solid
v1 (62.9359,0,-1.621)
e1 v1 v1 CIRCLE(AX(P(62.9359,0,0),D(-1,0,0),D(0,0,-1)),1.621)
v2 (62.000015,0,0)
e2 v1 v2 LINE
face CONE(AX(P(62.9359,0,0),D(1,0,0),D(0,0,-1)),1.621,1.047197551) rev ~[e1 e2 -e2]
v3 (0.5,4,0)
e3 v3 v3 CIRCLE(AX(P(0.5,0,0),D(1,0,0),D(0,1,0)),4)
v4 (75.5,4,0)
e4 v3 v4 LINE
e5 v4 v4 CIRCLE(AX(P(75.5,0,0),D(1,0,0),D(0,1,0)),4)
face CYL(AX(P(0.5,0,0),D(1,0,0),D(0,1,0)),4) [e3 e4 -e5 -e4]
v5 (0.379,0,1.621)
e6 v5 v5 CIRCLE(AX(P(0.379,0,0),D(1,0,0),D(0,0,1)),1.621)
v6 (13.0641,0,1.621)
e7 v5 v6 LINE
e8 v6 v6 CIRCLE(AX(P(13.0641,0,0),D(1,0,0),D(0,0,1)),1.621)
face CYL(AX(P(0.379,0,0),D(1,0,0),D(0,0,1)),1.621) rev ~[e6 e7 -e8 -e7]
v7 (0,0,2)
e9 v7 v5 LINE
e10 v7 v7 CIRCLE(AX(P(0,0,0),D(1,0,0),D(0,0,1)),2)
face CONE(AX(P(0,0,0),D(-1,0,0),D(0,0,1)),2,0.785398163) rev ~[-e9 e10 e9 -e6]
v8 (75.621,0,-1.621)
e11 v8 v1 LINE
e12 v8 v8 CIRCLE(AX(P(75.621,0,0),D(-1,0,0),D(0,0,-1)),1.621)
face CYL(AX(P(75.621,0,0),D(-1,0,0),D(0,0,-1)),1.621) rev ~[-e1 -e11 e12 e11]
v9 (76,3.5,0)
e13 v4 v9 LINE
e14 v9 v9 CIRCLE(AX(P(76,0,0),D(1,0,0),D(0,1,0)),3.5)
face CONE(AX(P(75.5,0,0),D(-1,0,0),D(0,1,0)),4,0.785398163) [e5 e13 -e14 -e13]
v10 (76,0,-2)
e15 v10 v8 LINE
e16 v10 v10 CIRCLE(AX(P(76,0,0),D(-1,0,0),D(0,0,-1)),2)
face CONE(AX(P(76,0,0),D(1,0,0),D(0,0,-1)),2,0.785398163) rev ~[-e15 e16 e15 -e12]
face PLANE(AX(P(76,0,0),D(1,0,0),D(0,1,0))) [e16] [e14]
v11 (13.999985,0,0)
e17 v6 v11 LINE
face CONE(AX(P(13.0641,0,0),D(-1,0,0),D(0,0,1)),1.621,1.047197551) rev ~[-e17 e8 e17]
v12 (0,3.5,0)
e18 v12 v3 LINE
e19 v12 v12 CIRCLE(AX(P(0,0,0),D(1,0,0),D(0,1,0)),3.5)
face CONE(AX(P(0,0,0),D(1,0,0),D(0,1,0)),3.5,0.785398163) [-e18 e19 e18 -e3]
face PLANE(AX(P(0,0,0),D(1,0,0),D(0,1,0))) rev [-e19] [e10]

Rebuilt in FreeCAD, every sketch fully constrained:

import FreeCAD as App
import Part
import Sketcher
from FreeCAD import Vector


def add_polygon(sketch, points):
    """Adds a closed chain of lines whose ends are joined by coincident constraints."""
    first, n = sketch.GeometryCount, len(points)
    for a, b in zip(points, points[1:] + points[:1]):
        sketch.addGeometry(Part.LineSegment(App.Vector(*a, 0), App.Vector(*b, 0)), False)
    for i in range(n):
        sketch.addConstraint(Sketcher.Constraint("Coincident", first + i, 2, first + (i + 1) % n, 1))

doc = App.newDocument("Part")
params = doc.addObject("Spreadsheet::Sheet", "Params")
for row, (alias, value) in enumerate([
    ("sketch1_width", "76 mm"),
    ("sketch1_width2", "75 mm"),
    ("sketch1_height", "3.5 mm"),
    ("revolution_angle", "360 deg"),
    ("hole_diameter", "3.242 mm"),
    ("hole_depth", "13.0641 mm"),
    ("hole_csink_diameter", "4 mm"),
    ("hole2_diameter", "3.242 mm"),
    ("hole2_depth", "13.0641 mm"),
    ("hole2_csink_diameter", "4 mm"),
], start=1):
    params.set(f"A{row}", alias)
    params.set(f"B{row}", "=" + value)
    params.setAlias(f"B{row}", alias)

body = doc.addObject("PartDesign::Body", "Body")

# Sketch on XY plane
sketch1 = body.newObject("Sketcher::SketchObject", "Sketch")
sketch1.AttachmentSupport = (doc.getObject("XY_Plane"), [""])
sketch1.MapMode = "FlatFace"
add_polygon(sketch1, [(0, 0), (76, 0), (76, 3.5), (75.5, 4), (0.5, 4), (0, 3.5)])  # lines 0-5
sketch1.addConstraint([
    Sketcher.Constraint("Horizontal", 0),
    Sketcher.Constraint("Vertical", 1),
    Sketcher.Constraint("Horizontal", 3),
    Sketcher.Constraint("Vertical", 5),
    Sketcher.Constraint("Coincident", 5, 2, -1, 1),
    Sketcher.Constraint("Perpendicular", 2, 4),
    Sketcher.Constraint("Horizontal", 1, 2, 4, 2),
    Sketcher.Constraint("Equal", 2, 4),
    Sketcher.Constraint("DistanceX", 0, 1, 0, 2, 76.0),
    Sketcher.Constraint("DistanceX", 3, 2, 3, 1, 75.0),
    Sketcher.Constraint("DistanceY", 1, 1, 1, 2, 3.5),
])
sketch1.setExpression("Constraints[14]", "Params.sketch1_width")
sketch1.setExpression("Constraints[15]", "Params.sketch1_width2")
sketch1.setExpression("Constraints[16]", "Params.sketch1_height")
revolution = body.newObject("PartDesign::Revolution", "Revolution")
revolution.Profile = sketch1
revolution.ReferenceAxis = (sketch1, ["H_Axis"])
revolution.setExpression("Angle", "Params.revolution_angle")

# Sketch on YZ plane
sketch2 = body.newObject("Sketcher::SketchObject", "Sketch001")
sketch2.AttachmentSupport = (doc.getObject("YZ_Plane"), [""])
sketch2.MapMode = "FlatFace"
sketch2.addGeometry(Part.Circle(Vector(0, 0, 0), Vector(0, 0, 1), 1.6), False)
sketch2.addConstraint([
    Sketcher.Constraint("Coincident", 0, 3, -1, 1),
    Sketcher.Constraint("Diameter", 0, 3.242),
])
doc.recompute()
hole = body.newObject("PartDesign::Hole", "Hole")
hole.Profile = sketch2
hole.ThreadType = "None"
hole.setExpression("Diameter", "Params.hole_diameter")
hole.DepthType = "Dimension"
hole.setExpression("Depth", "Params.hole_depth")
hole.DrillPoint = "Angled"
hole.DrillPointAngle = 120
hole.HoleCutType = "Countersink"
hole.setExpression("HoleCutDiameter", "Params.hole_csink_diameter")
hole.HoleCutCountersinkAngle = 90
hole.Reversed = True

# Sketch on YZ plane
sketch3 = body.newObject("Sketcher::SketchObject", "Sketch002")
sketch3.AttachmentSupport = (doc.getObject("YZ_Plane"), [""])
sketch3.MapMode = "FlatFace"
sketch3.AttachmentOffset = App.Placement(Vector(0, 0, 76), App.Rotation())
sketch3.addGeometry(Part.Circle(Vector(0, 0, 0), Vector(0, 0, 1), 1.6), False)
sketch3.addConstraint([
    Sketcher.Constraint("Coincident", 0, 3, -1, 1),
    Sketcher.Constraint("Diameter", 0, 3.242),
])
doc.recompute()
hole2 = body.newObject("PartDesign::Hole", "Hole001")
hole2.Profile = sketch3
hole2.ThreadType = "None"
hole2.setExpression("Diameter", "Params.hole2_diameter")
hole2.DepthType = "Dimension"
hole2.setExpression("Depth", "Params.hole2_depth")
hole2.DrillPoint = "Angled"
hole2.DrillPointAngle = 120
hole2.HoleCutType = "Countersink"
hole2.setExpression("HoleCutDiameter", "Params.hole2_csink_diameter")
hole2.HoleCutCountersinkAngle = 90

doc.recompute()
